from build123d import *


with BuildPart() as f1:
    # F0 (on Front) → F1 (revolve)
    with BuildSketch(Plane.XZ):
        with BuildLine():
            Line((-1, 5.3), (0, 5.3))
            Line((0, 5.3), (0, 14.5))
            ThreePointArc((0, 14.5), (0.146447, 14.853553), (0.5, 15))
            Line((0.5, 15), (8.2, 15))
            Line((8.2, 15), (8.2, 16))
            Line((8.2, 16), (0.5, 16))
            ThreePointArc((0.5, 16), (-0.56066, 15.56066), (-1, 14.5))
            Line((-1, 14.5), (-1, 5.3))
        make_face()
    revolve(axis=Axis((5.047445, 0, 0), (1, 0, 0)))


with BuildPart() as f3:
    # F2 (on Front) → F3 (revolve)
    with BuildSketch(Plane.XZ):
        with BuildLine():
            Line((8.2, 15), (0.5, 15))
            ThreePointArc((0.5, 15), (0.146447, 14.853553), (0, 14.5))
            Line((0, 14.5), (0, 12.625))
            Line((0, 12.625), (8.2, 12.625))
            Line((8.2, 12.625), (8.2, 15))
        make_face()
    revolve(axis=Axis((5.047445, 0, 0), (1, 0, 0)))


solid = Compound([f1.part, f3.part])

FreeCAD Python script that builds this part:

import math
import FreeCAD as App
import Part
import Sketcher
from FreeCAD import Vector

doc = App.newDocument("Part")
body = doc.addObject("PartDesign::Body", "Body")

# Sketch on XZ plane
sketch1 = body.newObject("Sketcher::SketchObject", "Sketch")
sketch1.AttachmentSupport = (doc.getObject("XZ_Plane"), [""])
sketch1.MapMode = "FlatFace"
sketch1.addGeometry([
    Part.LineSegment(Vector(-1, 5.3, 0), Vector(0, 5.3, 0)),  # 0
    Part.LineSegment(Vector(0, 5.3, 0), Vector(0, 14.5, 0)),  # 1
    Part.ArcOfCircle(Part.Circle(Vector(0.5, 14.5, 0), Vector(0, 0, 1), 0.5), math.radians(90), math.radians(180)),  # 2
    Part.LineSegment(Vector(0.5, 15, 0), Vector(8.2, 15, 0)),  # 3
    Part.LineSegment(Vector(8.2, 15, 0), Vector(8.2, 16, 0)),  # 4
    Part.LineSegment(Vector(8.2, 16, 0), Vector(0.5, 16, 0)),  # 5
    Part.ArcOfCircle(Part.Circle(Vector(0.5, 14.5, 0), Vector(0, 0, 1), 1.5), math.radians(90), math.radians(180)),  # 6
    Part.LineSegment(Vector(-1, 14.5, 0), Vector(-1, 5.3, 0)),  # 7
], False)
sketch1.addConstraint([
    Sketcher.Constraint("Coincident", 0, 2, 1, 1),
    Sketcher.Constraint("Coincident", 1, 2, 2, 2),
    Sketcher.Constraint("Coincident", 2, 1, 3, 1),
    Sketcher.Constraint("Coincident", 3, 2, 4, 1),
    Sketcher.Constraint("Coincident", 4, 2, 5, 1),
    Sketcher.Constraint("Tangent", 5, 2, 6, 1),
    Sketcher.Constraint("Tangent", 6, 2, 7, 1),
    Sketcher.Constraint("Coincident", 7, 2, 0, 1),
    Sketcher.Constraint("Horizontal", 0),
    Sketcher.Constraint("Vertical", 1),
    Sketcher.Constraint("Horizontal", 3),
    Sketcher.Constraint("Vertical", 4),
    Sketcher.Constraint("Horizontal", 5),
    Sketcher.Constraint("Vertical", 7),
    Sketcher.Constraint("Coincident", 6, 3, 2, 3),
    Sketcher.Constraint("PointOnObject", 0, 2, -2),
    Sketcher.Constraint("Horizontal", 6, 3, 1, 2),
    Sketcher.Constraint("Vertical", 6, 3, 2, 1),
    Sketcher.Constraint("Radius", 2, 0.500001),
    Sketcher.Constraint("Radius", 6, 1.500001),
    Sketcher.Constraint("DistanceX", 3, 1, 3, 2, 7.7),
    Sketcher.Constraint("DistanceY", 1, 1, 1, 2, 9.2),
    Sketcher.Constraint("DistanceY", -1, 1, 2, 1, 15.0),
])
revolution = body.newObject("PartDesign::Revolution", "Revolution")
revolution.Profile = sketch1
revolution.ReferenceAxis = (sketch1, ["H_Axis"])
revolution.Angle = 360
body2 = doc.addObject("PartDesign::Body", "Body001")

# Sketch on XZ plane
sketch2 = body2.newObject("Sketcher::SketchObject", "Sketch001")
sketch2.AttachmentSupport = (doc.getObject("XZ_Plane001"), [""])
sketch2.MapMode = "FlatFace"
sketch2.addGeometry([
    Part.LineSegment(Vector(8.2, 15, 0), Vector(0.5, 15, 0)),  # 0
    Part.ArcOfCircle(Part.Circle(Vector(0.5, 14.5, 0), Vector(0, 0, 1), 0.5), math.radians(90), math.radians(180)),  # 1
    Part.LineSegment(Vector(0, 14.5, 0), Vector(0, 12.6, 0)),  # 2
    Part.LineSegment(Vector(0, 12.6, 0), Vector(8.2, 12.6, 0)),  # 3
    Part.LineSegment(Vector(8.2, 12.6, 0), Vector(8.2, 15, 0)),  # 4
], False)
sketch2.addConstraint([
    Sketcher.Constraint("Coincident", 0, 2, 1, 1),
    Sketcher.Constraint("Coincident", 1, 2, 2, 1),
    Sketcher.Constraint("Coincident", 2, 2, 3, 1),
    Sketcher.Constraint("Coincident", 3, 2, 4, 1),
    Sketcher.Constraint("Coincident", 4, 2, 0, 1),
    Sketcher.Constraint("Horizontal", 0),
    Sketcher.Constraint("Vertical", 2),
    Sketcher.Constraint("Horizontal", 3),
    Sketcher.Constraint("Vertical", 4),
    Sketcher.Constraint("PointOnObject", 1, 2, -2),
    Sketcher.Constraint("Vertical", 1, 3, 0, 2),
    Sketcher.Constraint("Radius", 1, 0.500001),
    Sketcher.Constraint("DistanceX", 0, 2, 0, 1, 7.7),
    Sketcher.Constraint("DistanceY", -1, 1, 0, 2, 15.0),
    Sketcher.Constraint("DistanceY", -1, 1, 1, 2, 14.5),
    Sketcher.Constraint("DistanceY", 2, 2, 2, 1, 1.875),
])
revolution2 = body2.newObject("PartDesign::Revolution", "Revolution001")
revolution2.Profile = sketch2
revolution2.ReferenceAxis = (sketch2, ["H_Axis"])
revolution2.Angle = 360

doc.recompute()
